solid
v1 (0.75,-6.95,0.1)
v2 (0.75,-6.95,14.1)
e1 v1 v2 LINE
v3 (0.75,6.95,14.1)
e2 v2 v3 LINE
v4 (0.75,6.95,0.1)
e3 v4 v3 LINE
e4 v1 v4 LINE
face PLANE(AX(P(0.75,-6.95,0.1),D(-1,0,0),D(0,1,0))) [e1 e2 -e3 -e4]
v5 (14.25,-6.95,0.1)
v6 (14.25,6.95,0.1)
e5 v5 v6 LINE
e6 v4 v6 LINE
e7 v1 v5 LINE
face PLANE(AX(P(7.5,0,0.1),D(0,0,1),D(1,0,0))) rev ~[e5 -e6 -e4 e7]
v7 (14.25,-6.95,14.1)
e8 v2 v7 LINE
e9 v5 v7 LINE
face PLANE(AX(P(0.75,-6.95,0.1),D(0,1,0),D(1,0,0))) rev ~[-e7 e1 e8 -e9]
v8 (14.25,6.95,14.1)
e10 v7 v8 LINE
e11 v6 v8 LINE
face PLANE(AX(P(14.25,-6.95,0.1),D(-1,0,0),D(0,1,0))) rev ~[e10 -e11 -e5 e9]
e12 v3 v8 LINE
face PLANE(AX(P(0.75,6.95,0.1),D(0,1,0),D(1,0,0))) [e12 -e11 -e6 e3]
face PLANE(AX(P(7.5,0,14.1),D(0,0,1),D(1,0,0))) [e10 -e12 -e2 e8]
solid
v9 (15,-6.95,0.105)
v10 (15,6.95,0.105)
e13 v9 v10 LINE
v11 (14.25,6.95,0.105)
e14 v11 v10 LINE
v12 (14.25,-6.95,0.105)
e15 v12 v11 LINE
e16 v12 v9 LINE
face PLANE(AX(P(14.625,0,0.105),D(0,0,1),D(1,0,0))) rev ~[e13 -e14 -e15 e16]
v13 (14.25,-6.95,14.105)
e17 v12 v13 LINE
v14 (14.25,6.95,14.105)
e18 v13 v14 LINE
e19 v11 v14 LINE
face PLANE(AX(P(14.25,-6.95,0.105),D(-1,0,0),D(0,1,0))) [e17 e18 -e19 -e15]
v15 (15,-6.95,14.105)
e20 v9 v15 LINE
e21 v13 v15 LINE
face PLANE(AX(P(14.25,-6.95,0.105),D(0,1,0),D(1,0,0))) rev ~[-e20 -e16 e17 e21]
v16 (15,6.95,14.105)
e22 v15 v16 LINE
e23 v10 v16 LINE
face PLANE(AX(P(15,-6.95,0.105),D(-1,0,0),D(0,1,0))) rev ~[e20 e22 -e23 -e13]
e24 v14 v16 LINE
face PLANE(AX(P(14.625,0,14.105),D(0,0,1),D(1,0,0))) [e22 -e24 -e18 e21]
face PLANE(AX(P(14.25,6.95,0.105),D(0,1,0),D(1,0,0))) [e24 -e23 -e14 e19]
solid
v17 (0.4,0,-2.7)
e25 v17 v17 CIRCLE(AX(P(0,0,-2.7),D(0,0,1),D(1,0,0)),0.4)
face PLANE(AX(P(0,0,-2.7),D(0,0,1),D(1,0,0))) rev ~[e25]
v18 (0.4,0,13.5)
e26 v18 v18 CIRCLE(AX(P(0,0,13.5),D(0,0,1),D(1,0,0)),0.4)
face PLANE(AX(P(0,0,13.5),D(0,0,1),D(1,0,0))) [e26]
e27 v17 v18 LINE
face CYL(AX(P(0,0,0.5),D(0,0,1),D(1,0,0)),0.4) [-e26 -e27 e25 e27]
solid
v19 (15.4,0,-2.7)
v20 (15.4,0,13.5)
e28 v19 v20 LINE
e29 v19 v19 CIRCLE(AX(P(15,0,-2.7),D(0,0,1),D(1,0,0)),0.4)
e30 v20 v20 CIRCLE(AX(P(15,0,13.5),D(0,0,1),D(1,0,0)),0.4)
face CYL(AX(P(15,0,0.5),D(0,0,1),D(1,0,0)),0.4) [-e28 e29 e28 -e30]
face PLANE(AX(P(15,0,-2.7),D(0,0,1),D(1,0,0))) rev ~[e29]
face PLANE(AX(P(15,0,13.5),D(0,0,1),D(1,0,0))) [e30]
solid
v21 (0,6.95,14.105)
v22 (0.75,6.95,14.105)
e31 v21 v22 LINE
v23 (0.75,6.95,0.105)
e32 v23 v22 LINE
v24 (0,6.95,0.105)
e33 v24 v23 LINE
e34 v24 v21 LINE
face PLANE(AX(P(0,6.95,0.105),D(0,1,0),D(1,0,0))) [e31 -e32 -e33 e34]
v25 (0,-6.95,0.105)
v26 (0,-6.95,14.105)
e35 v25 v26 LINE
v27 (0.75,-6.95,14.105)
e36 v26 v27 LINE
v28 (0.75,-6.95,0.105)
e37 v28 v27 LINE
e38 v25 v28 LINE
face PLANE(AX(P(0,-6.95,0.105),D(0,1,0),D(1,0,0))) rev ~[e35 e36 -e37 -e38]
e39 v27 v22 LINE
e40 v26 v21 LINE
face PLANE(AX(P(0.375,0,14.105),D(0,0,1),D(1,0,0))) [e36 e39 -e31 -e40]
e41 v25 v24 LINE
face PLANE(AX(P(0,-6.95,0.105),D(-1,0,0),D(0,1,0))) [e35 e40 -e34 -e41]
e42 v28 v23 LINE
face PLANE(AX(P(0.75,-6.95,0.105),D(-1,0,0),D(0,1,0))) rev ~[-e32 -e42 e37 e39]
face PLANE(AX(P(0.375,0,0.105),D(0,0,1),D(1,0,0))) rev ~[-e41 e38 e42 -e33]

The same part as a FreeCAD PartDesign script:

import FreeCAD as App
import Part
import Sketcher
from FreeCAD import Vector


def add_polygon(sketch, points):
    """Adds a closed chain of lines whose ends are joined by coincident constraints."""
    first, n = sketch.GeometryCount, len(points)
    for a, b in zip(points, points[1:] + points[:1]):
        sketch.addGeometry(Part.LineSegment(App.Vector(*a, 0), App.Vector(*b, 0)), False)
    for i in range(n):
        sketch.addConstraint(Sketcher.Constraint("Coincident", first + i, 2, first + (i + 1) % n, 1))

doc = App.newDocument("Part")
body = doc.addObject("PartDesign::Body", "Body")

# Sketch on XY plane
sketch1 = body.newObject("Sketcher::SketchObject", "Sketch")
sketch1.AttachmentSupport = (doc.getObject("XY_Plane"), [""])
sketch1.MapMode = "FlatFace"
sketch1.AttachmentOffset = App.Placement(Vector(0, 0, 0.1), App.Rotation())
add_polygon(sketch1, [(1, 7), (1, -7), (14, -7), (14, 7)])  # lines 0-3
sketch1.addConstraint([
    Sketcher.Constraint("Vertical", 0),
    Sketcher.Constraint("Horizontal", 1),
    Sketcher.Constraint("Vertical", 2),
    Sketcher.Constraint("Horizontal", 3),
    Sketcher.Constraint("DistanceX", 1, 1, 1, 2, 13.5),
    Sketcher.Constraint("DistanceY", 0, 2, 0, 1, 13.9),
    Sketcher.Constraint("DistanceX", -1, 1, 0, 2, 0.75),
    Sketcher.Constraint("DistanceY", 0, 2, -1, 1, 6.95),
])
pad1 = body.newObject("PartDesign::Pad", "Pad")
pad1.Profile = sketch1
pad1.Length = 14
body2 = doc.addObject("PartDesign::Body", "Body001")
body2.AllowCompound = True

# Sketch on XY plane
sketch2 = body2.newObject("Sketcher::SketchObject", "Sketch001")
sketch2.AttachmentSupport = (doc.getObject("XY_Plane001"), [""])
sketch2.MapMode = "FlatFace"
sketch2.AttachmentOffset = App.Placement(Vector(0, 0, 0.5), App.Rotation())
sketch2.addGeometry([
    Part.Circle(Vector(0, 0, 0), Vector(0, 0, 1), 0.4),
    Part.Circle(Vector(15, 0, 0), Vector(0, 0, 1), 0.4),
], False)
sketch2.addConstraint([
    Sketcher.Constraint("Coincident", 0, 3, -1, 1),
    Sketcher.Constraint("Equal", 0, 1),
    Sketcher.Constraint("PointOnObject", 1, 3, -1),
    Sketcher.Constraint("Diameter", 0, 0.8),
    Sketcher.Constraint("DistanceX", -1, 1, 1, 3, 15.0),
])
pad2 = body2.newObject("PartDesign::Pad", "Pad001")
pad2.Profile = sketch2
pad2.Type = "TwoLengths"
pad2.Length = 13
pad2.Length2 = 3.2
body3 = doc.addObject("PartDesign::Body", "Body002")
body3.AllowCompound = True

# Sketch on XY plane
sketch3 = body3.newObject("Sketcher::SketchObject", "Sketch002")
sketch3.AttachmentSupport = (doc.getObject("XY_Plane002"), [""])
sketch3.MapMode = "FlatFace"
sketch3.AttachmentOffset = App.Placement(Vector(0, 0, 0.105), App.Rotation())
add_polygon(sketch3, [(0, 7), (0, -7), (0.8, -7), (0.8, 7)])  # lines 0-3
add_polygon(sketch3, [(14.2, 7), (14.2, -7), (15, -7), (15, 7)])  # lines 4-7
sketch3.addConstraint([
    Sketcher.Constraint("Vertical", 0),
    Sketcher.Constraint("Horizontal", 1),
    Sketcher.Constraint("Vertical", 2),
    Sketcher.Constraint("Horizontal", 3),
    Sketcher.Constraint("Vertical", 4),
    Sketcher.Constraint("Horizontal", 5),
    Sketcher.Constraint("Vertical", 6),
    Sketcher.Constraint("Horizontal", 7),
    Sketcher.Constraint("Symmetric", 0, 2, 3, 2, -1, 1),
    Sketcher.Constraint("Horizontal", 1, 2, 4, 2),
    Sketcher.Constraint("Horizontal", 3, 2, 6, 2),
    Sketcher.Constraint("Equal", 3, 5),
    Sketcher.Constraint("DistanceY", 0, 2, 0, 1, 13.9),
    Sketcher.Constraint("DistanceX", -1, 1, 5, 2, 15.0),
    Sketcher.Constraint("DistanceX", 1, 1, 1, 2, 0.75),
])
pad3 = body3.newObject("PartDesign::Pad", "Pad002")
pad3.Profile = sketch3
pad3.Length = 14

doc.recompute()
